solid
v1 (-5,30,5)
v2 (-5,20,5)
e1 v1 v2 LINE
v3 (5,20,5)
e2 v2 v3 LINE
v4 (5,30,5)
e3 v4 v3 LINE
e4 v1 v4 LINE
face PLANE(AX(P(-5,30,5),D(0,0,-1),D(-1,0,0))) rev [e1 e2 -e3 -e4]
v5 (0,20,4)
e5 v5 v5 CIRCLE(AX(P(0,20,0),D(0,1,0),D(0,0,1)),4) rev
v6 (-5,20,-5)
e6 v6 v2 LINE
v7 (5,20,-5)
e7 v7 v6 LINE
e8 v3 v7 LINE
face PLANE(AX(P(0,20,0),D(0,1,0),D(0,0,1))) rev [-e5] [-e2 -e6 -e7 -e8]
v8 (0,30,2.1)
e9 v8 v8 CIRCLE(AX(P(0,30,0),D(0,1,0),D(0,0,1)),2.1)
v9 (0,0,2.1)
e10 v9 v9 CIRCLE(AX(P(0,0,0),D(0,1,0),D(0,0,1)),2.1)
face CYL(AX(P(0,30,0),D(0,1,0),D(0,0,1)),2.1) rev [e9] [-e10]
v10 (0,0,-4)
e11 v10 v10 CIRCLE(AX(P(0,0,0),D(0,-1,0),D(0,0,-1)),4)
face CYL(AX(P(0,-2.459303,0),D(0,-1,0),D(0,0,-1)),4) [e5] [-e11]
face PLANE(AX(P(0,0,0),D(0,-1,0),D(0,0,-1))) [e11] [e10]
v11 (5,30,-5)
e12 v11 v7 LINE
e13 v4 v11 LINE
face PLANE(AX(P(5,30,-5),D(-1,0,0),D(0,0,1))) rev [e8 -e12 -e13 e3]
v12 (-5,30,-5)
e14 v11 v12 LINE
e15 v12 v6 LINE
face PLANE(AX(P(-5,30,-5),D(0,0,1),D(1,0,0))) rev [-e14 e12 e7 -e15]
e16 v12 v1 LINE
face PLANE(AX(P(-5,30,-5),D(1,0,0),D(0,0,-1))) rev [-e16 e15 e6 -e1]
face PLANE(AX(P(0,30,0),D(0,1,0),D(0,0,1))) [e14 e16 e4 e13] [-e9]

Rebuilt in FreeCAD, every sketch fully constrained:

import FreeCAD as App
import Part
import Sketcher
Q = App.Units.Quantity

doc = App.newDocument("Part")
params = doc.addObject("Spreadsheet::Sheet", "Params")
for row, (alias, value) in enumerate([
    ("sketch1_width", "4 mm"),
    ("sketch1_height", "20 mm"),
    ("revolution_angle", "360 deg"),
    ("sketch2_width", "10 mm"),
    ("pad1_length", "10 mm"),
    ("sketch3_diameter", "4.2 mm"),
    ("hole_diameter", "4.2 mm"),
], start=1):
    params.set(f"A{row}", alias)
    params.set(f"B{row}", "=" + value)
    params.setAlias(f"B{row}", alias)

body = doc.addObject("PartDesign::Body", "Body")

sketch1 = body.newObject("Sketcher::SketchObject", "Sketch")
sketch1.AttachmentSupport = (doc.getObject("XY_Plane"), [""])
sketch1.MapMode = "FlatFace"
sketch1.addGeometry(Part.LineSegment(App.Vector(0, 20, 0), App.Vector(0, 0, 0)), False)
sketch1.addGeometry(Part.LineSegment(App.Vector(0, 0, 0), App.Vector(4, 0, 0)), False)
sketch1.addGeometry(Part.LineSegment(App.Vector(4, 0, 0), App.Vector(4, 20, 0)), False)
sketch1.addGeometry(Part.LineSegment(App.Vector(4, 20, 0), App.Vector(0, 20, 0)), False)
sketch1.addConstraint(Sketcher.Constraint("Coincident", 0, 2, 1, 1))
sketch1.addConstraint(Sketcher.Constraint("Coincident", 1, 2, 2, 1))
sketch1.addConstraint(Sketcher.Constraint("Coincident", 2, 2, 3, 1))
sketch1.addConstraint(Sketcher.Constraint("Coincident", 3, 2, 0, 1))
sketch1.addConstraint(Sketcher.Constraint("Vertical", 0))
sketch1.addConstraint(Sketcher.Constraint("Horizontal", 1))
sketch1.addConstraint(Sketcher.Constraint("Vertical", 2))
sketch1.addConstraint(Sketcher.Constraint("Horizontal", 3))
sketch1.addConstraint(Sketcher.Constraint("Coincident", 0, 2, -1, 1))
sketch1.addConstraint(Sketcher.Constraint("DistanceX", 1, 1, 1, 2, Q("4 mm")))
sketch1.addConstraint(Sketcher.Constraint("DistanceY", 0, 2, 0, 1, Q("20 mm")))
sketch1.setExpression("Constraints[9]", "Params.sketch1_width")
sketch1.setExpression("Constraints[10]", "Params.sketch1_height")
revolution = body.newObject("PartDesign::Revolution", "Revolution")
revolution.Profile = sketch1
revolution.ReferenceAxis = (sketch1, ["V_Axis"])
revolution.setExpression("Angle", "Params.revolution_angle")

sketch2 = body.newObject("Sketcher::SketchObject", "Sketch001")
sketch2.AttachmentSupport = (doc.getObject("XZ_Plane"), [""])
sketch2.MapMode = "FlatFace"
sketch2.AttachmentOffset = App.Placement(App.Vector(0, 0, -20), App.Rotation())
sketch2.addGeometry(Part.LineSegment(App.Vector(-5, -5, 0), App.Vector(-5, 5, 0)), False)
sketch2.addGeometry(Part.LineSegment(App.Vector(-5, 5, 0), App.Vector(5, 5, 0)), False)
sketch2.addGeometry(Part.LineSegment(App.Vector(5, 5, 0), App.Vector(5, -5, 0)), False)
sketch2.addGeometry(Part.LineSegment(App.Vector(5, -5, 0), App.Vector(-5, -5, 0)), False)
sketch2.addConstraint(Sketcher.Constraint("Coincident", 0, 2, 1, 1))
sketch2.addConstraint(Sketcher.Constraint("Coincident", 1, 2, 2, 1))
sketch2.addConstraint(Sketcher.Constraint("Coincident", 2, 2, 3, 1))
sketch2.addConstraint(Sketcher.Constraint("Coincident", 3, 2, 0, 1))
sketch2.addConstraint(Sketcher.Constraint("Vertical", 0))
sketch2.addConstraint(Sketcher.Constraint("Horizontal", 1))
sketch2.addConstraint(Sketcher.Constraint("Vertical", 2))
sketch2.addConstraint(Sketcher.Constraint("Horizontal", 3))
sketch2.addConstraint(Sketcher.Constraint("Symmetric", 0, 2, 2, 2, -1, 1))
sketch2.addConstraint(Sketcher.Constraint("Equal", 3, 0))
sketch2.addConstraint(Sketcher.Constraint("DistanceX", 1, 1, 1, 2, Q("10 mm")))
sketch2.setExpression("Constraints[10]", "Params.sketch2_width")
pad1 = body.newObject("PartDesign::Pad", "Pad")
pad1.Profile = sketch2
pad1.setExpression("Length", "Params.pad1_length")
pad1.Reversed = True

sketch3 = body.newObject("Sketcher::SketchObject", "Sketch002")
sketch3.AttachmentSupport = (doc.getObject("XZ_Plane"), [""])
sketch3.MapMode = "FlatFace"
sketch3.AttachmentOffset = App.Placement(App.Vector(0, 0, -30), App.Rotation())
sketch3.addGeometry(Part.Circle(App.Vector(0, 0, 0), App.Vector(0, 0, 1), 2.1), False)
sketch3.addConstraint(Sketcher.Constraint("Coincident", 0, 3, -1, 1))
sketch3.addConstraint(Sketcher.Constraint("Diameter", 0, Q("4.2 mm")))
sketch3.setExpression("Constraints[1]", "Params.sketch3_diameter")
doc.recompute()
hole = body.newObject("PartDesign::Hole", "Hole")
hole.Profile = sketch3
hole.ThreadType = "None"
hole.setExpression("Diameter", "Params.hole_diameter")
hole.DepthType = "ThroughAll"
hole.Reversed = True

doc.recompute()
